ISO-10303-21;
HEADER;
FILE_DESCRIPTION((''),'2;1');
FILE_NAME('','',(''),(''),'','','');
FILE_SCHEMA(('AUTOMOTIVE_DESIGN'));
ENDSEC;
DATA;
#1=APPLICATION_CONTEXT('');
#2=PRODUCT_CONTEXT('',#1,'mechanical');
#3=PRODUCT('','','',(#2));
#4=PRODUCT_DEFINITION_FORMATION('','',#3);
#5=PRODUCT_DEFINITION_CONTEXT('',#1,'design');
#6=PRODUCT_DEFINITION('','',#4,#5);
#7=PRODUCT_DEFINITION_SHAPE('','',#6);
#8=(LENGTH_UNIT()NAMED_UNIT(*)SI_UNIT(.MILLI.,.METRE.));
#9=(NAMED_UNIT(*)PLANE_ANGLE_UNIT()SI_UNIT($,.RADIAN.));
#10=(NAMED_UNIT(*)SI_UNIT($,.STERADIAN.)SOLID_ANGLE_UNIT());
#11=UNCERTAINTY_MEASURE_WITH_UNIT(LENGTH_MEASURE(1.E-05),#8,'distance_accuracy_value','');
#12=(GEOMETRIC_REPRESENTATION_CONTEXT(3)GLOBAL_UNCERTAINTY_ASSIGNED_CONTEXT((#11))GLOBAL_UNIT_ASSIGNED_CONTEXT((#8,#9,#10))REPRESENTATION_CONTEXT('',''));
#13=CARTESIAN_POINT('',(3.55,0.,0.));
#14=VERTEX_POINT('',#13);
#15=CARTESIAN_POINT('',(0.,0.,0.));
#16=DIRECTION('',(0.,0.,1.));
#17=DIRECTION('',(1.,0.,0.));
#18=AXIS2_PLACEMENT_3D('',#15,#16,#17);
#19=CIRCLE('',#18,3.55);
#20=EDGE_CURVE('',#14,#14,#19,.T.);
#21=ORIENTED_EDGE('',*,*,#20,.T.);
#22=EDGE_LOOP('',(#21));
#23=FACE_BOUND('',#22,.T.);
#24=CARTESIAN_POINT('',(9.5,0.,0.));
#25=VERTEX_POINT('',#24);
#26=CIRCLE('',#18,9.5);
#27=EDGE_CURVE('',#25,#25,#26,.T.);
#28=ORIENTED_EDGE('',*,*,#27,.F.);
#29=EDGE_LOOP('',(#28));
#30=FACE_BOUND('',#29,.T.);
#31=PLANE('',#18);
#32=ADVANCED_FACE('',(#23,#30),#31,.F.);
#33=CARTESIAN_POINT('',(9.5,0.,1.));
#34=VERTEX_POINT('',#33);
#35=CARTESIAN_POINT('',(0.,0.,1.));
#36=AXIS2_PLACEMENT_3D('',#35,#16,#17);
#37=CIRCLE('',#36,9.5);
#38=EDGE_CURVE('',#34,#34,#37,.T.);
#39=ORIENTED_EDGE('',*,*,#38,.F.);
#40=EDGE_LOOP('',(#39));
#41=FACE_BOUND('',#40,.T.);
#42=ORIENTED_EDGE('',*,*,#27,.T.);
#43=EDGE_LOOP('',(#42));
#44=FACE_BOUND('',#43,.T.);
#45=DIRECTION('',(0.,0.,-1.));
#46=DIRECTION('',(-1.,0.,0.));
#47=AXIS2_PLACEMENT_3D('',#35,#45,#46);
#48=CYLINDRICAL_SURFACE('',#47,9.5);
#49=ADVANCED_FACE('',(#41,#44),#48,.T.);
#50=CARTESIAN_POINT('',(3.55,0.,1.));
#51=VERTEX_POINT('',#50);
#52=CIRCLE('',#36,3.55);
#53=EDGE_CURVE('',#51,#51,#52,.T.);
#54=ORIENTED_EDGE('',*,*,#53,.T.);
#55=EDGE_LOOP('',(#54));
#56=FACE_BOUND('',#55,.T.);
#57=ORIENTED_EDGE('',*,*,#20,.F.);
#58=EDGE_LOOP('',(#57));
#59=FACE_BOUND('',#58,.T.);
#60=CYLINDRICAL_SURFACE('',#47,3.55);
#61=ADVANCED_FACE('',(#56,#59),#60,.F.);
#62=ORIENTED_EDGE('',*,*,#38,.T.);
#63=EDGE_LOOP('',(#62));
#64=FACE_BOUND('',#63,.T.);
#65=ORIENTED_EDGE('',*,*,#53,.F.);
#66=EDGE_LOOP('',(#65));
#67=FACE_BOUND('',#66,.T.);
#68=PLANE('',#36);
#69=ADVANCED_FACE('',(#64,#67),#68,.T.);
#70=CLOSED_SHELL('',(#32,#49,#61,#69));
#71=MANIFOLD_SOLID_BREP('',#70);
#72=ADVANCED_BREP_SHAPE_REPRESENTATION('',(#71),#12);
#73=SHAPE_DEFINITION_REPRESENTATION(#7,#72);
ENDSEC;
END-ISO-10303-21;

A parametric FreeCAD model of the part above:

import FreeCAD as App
import Part
import Sketcher

V = App.Vector
Q = App.Units.Quantity

doc = App.newDocument("Part")
body = doc.addObject("PartDesign::Body", "Body")

sketch1 = body.newObject("Sketcher::SketchObject", "Sketch")
sketch1.AttachmentSupport = (doc.getObject("XY_Plane"), [""])
sketch1.MapMode = "FlatFace"
sketch1.addGeometry([
    Part.Circle(V(0, 0, 0), V(0, 0, 1), 9.5),
    Part.Circle(V(0, 0, 0), V(0, 0, 1), 3.5),
], False)
sketch1.addConstraint([
    Sketcher.Constraint("Coincident", 0, 3, -1, 1),
    Sketcher.Constraint("Coincident", 1, 3, -1, 1),
    Sketcher.Constraint("Diameter", 0, Q("19 mm")),
    Sketcher.Constraint("Diameter", 1, Q("7.1 mm")),
])
pad1 = body.newObject("PartDesign::Pad", "Pad")
pad1.Profile = sketch1
pad1.Length = 1

doc.recompute()
